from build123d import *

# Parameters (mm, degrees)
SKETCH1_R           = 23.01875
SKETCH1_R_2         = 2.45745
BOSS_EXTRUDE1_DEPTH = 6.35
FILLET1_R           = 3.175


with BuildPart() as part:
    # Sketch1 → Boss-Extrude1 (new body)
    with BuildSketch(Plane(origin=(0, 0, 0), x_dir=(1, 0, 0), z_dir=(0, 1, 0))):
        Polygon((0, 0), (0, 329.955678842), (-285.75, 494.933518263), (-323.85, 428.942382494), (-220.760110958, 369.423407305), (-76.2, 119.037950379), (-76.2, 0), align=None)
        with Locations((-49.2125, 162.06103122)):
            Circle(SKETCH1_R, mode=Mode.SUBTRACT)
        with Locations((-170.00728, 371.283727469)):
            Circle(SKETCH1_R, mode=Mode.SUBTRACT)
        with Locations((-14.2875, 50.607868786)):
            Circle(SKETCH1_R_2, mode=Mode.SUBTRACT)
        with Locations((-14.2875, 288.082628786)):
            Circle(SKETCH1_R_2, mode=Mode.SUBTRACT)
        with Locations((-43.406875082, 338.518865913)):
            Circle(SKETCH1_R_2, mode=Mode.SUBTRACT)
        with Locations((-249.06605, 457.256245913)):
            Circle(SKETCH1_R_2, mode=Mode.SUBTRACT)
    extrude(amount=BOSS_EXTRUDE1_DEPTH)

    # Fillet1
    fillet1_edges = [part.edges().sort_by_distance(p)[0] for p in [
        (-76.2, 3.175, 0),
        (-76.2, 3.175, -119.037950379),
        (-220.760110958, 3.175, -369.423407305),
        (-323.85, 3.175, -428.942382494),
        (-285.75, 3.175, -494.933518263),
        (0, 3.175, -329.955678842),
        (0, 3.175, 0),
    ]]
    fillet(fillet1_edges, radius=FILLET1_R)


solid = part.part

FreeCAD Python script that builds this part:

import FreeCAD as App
import Part
import Sketcher

V = App.Vector
Q = App.Units.Quantity


def edges_at(feature, points):
    """Names of the edges that pass closest to the given points."""
    edges = feature.Shape.Edges
    near = lambda p: min(range(len(edges)), key=lambda i: edges[i].distToShape(Part.Vertex(*p))[0])
    return sorted({f"Edge{near(p) + 1}" for p in points})

doc = App.newDocument("Part")
params = doc.addObject("Spreadsheet::Sheet", "Params")
for row, (alias, value) in enumerate([
    ("sketch1_width", "3 in"),
    ("sketch1_length", "3 in"),
    ("sketch1_diameter", "1.8125 in"),
    ("pad1_length", "0.25 in"),
    ("fillet_radius", "0.125 in"),
], start=1):
    params.set(f"A{row}", alias)
    params.set(f"B{row}", "=" + value)
    params.setAlias(f"B{row}", alias)

body = doc.addObject("PartDesign::Body", "Body")

# Sketch on XZ plane
sketch1 = body.newObject("Sketcher::SketchObject", "Sketch")
sketch1.AttachmentSupport = (doc.getObject("XZ_Plane"), [""])
sketch1.MapMode = "FlatFace"
sketch1.addGeometry([
    Part.LineSegment(V(0, 0, 0), V(0, -329.955679, 0)),  # 0
    Part.LineSegment(V(0, -329.955679, 0), V(-285.75, -494.933518, 0)),  # 1
    Part.LineSegment(V(-285.75, -494.933518, 0), V(-323.85, -428.942382, 0)),  # 2
    Part.LineSegment(V(-323.85, -428.942382, 0), V(-220.760111, -369.423407, 0)),  # 3
    Part.LineSegment(V(-220.760111, -369.423407, 0), V(-76.2, -119.03795, 0)),  # 4
    Part.LineSegment(V(-76.2, -119.03795, 0), V(-76.2, 0, 0)),  # 5
    Part.LineSegment(V(-76.2, 0, 0), V(0, 0, 0)),  # 6
    Part.Circle(V(-14.2875, -50.607869, 0), V(0, 0, 1), 2.45745),  # 7
    Part.Circle(V(-49.2125, -162.061031, 0), V(0, 0, 1), 23.01875),  # 8
    Part.Circle(V(-249.06605, -457.256246, 0), V(0, 0, 1), 2.45745),  # 9
    Part.Circle(V(-170.00728, -371.283727, 0), V(0, 0, 1), 23.01875),  # 10
    Part.Circle(V(-14.2875, -288.082629, 0), V(0, 0, 1), 2.45745),  # 11
    Part.Circle(V(-43.406875, -338.518866, 0), V(0, 0, 1), 2.45745),  # 12
], False)
sketch1.addConstraint([
    Sketcher.Constraint("Coincident", 0, 2, 1, 1),
    Sketcher.Constraint("Coincident", 1, 2, 2, 1),
    Sketcher.Constraint("Coincident", 2, 2, 3, 1),
    Sketcher.Constraint("Coincident", 3, 2, 4, 1),
    Sketcher.Constraint("Coincident", 4, 2, 5, 1),
    Sketcher.Constraint("Coincident", 5, 2, 6, 1),
    Sketcher.Constraint("Coincident", 6, 2, 0, 1),
    Sketcher.Constraint("Vertical", 0),
    Sketcher.Constraint("Vertical", 5),
    Sketcher.Constraint("Horizontal", 6),
    Sketcher.Constraint("Coincident", 6, 2, -1, 1),
    Sketcher.Constraint("Equal", 7, 9),
    Sketcher.Constraint("Equal", 8, 10),
    Sketcher.Constraint("Equal", 9, 11),
    Sketcher.Constraint("Equal", 11, 12),
    Sketcher.Constraint("Perpendicular", 1, 2),
    Sketcher.Constraint("Perpendicular", 2, 3),
    Sketcher.Constraint("Vertical", 7, 3, 11, 3),
    Sketcher.Constraint("DistanceX", 6, 1, 6, 2, Q("3 in")),
    Sketcher.Constraint("Distance", 2, Q("3 in")),
    Sketcher.Constraint("Diameter", 8, Q("1.8125 in")),
    Sketcher.Constraint("Angle", 1, Q("-150 deg")),
    Sketcher.Constraint("Angle", 4, Q("60 deg")),
    Sketcher.Constraint("Diameter", 7, Q("0.1935 in")),
    Sketcher.Constraint("DistanceX", 1, 2, -1, 1, Q("11.25 in")),
    Sketcher.Constraint("DistanceX", 7, 3, -1, 1, Q("0.5625 in")),
    Sketcher.Constraint("DistanceX", 8, 3, -1, 1, Q("1.9375 in")),
    Sketcher.Constraint("DistanceX", 10, 3, -1, 1, Q("6.6932 in")),
    Sketcher.Constraint("DistanceY", 11, 3, 7, 3, Q("9.3494 in")),
    Sketcher.Constraint("DistanceY", 9, 3, 12, 3, Q("4.6747 in")),
    Sketcher.Constraint("DistanceY", 0, 2, 0, 1, Q("329.955679 mm")),
    Sketcher.Constraint("DistanceY", 5, 1, 5, 2, Q("119.03795 mm")),
    Sketcher.Constraint("DistanceY", 10, 3, 11, 3, Q("83.201099 mm")),
    Sketcher.Constraint("DistanceY", 7, 3, -1, 1, Q("50.607869 mm")),
    Sketcher.Constraint("DistanceY", 8, 3, -1, 1, Q("162.061031 mm")),
    Sketcher.Constraint("DistanceX", 9, 3, -1, 1, Q("249.06605 mm")),
    Sketcher.Constraint("DistanceY", 9, 3, 10, 3, Q("85.972518 mm")),
    Sketcher.Constraint("DistanceX", 12, 3, -1, 1, Q("43.406875 mm")),
])
sketch1.setExpression("Constraints[18]", "Params.sketch1_width")
sketch1.setExpression("Constraints[19]", "Params.sketch1_length")
sketch1.setExpression("Constraints[20]", "Params.sketch1_diameter")
pad1 = body.newObject("PartDesign::Pad", "Pad")
pad1.Profile = sketch1
pad1.setExpression("Length", "Params.pad1_length")
pad1.Reversed = True
doc.recompute()

fillet = body.newObject("PartDesign::Fillet", "Fillet")
fillet.Base = (pad1, edges_at(pad1, [
    (-76.2, 3.175, 0),
    (-76.2, 3.175, -119.038),
    (-220.76, 3.175, -369.423),
    (-323.85, 3.175, -428.942),
    (-285.75, 3.175, -494.934),
    (0, 3.175, -329.956),
    (0, 3.175, 0),
]))
fillet.setExpression("Radius", "Params.fillet_radius")

doc.recompute()
